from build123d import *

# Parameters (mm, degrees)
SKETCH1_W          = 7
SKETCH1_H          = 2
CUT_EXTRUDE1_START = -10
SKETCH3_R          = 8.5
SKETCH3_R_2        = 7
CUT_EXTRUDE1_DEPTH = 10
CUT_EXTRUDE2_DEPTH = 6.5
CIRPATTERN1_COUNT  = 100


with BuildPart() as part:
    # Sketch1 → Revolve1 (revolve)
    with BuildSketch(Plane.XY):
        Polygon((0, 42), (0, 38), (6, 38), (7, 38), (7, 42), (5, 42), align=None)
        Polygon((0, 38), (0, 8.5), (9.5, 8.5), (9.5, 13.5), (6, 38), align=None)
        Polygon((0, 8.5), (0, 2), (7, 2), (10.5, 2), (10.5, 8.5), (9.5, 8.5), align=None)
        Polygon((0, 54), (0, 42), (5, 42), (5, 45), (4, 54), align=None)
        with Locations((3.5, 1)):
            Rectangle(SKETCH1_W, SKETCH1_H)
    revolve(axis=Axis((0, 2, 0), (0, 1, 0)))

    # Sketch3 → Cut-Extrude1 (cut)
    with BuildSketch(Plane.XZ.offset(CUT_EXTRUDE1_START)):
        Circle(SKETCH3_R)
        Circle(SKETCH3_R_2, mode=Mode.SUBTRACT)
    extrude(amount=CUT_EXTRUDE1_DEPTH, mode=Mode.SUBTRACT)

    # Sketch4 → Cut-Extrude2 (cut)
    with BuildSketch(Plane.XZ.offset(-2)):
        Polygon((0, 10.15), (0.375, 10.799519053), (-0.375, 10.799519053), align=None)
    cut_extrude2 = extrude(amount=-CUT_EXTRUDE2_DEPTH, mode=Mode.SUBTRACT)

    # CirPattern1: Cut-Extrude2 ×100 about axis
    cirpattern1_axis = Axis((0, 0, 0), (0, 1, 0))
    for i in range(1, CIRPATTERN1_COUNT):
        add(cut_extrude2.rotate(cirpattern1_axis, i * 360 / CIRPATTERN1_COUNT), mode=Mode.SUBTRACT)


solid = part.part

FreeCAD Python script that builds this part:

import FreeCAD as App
import Part
import Sketcher

V = App.Vector
Q = App.Units.Quantity


def add_polygon(sketch, points):
    """Adds a closed chain of lines whose ends are joined by coincident constraints."""
    first, n = sketch.GeometryCount, len(points)
    for a, b in zip(points, points[1:] + points[:1]):
        sketch.addGeometry(Part.LineSegment(App.Vector(*a, 0), App.Vector(*b, 0)), False)
    for i in range(n):
        sketch.addConstraint(Sketcher.Constraint("Coincident", first + i, 2, first + (i + 1) % n, 1))

doc = App.newDocument("Part")
body = doc.addObject("PartDesign::Body", "Body")

# Sketch on XY plane
sketch1 = body.newObject("Sketcher::SketchObject", "Sketch")
sketch1.AttachmentSupport = (doc.getObject("XY_Plane"), [""])
sketch1.MapMode = "FlatFace"
add_polygon(sketch1, [(7, 2), (10.5, 2), (10.5, 8.5), (9.5, 8.5), (9.5, 13.5), (6, 38), (7, 38), (7, 42), (5, 42), (5, 45), (4, 54), (0, 54), (0, 0), (7, 0)])  # lines 0-13
sketch1.addConstraint([
    Sketcher.Constraint("Horizontal", 0),
    Sketcher.Constraint("Vertical", 1),
    Sketcher.Constraint("Horizontal", 2),
    Sketcher.Constraint("Vertical", 3),
    Sketcher.Constraint("Horizontal", 5),
    Sketcher.Constraint("Vertical", 6),
    Sketcher.Constraint("Horizontal", 7),
    Sketcher.Constraint("Vertical", 8),
    Sketcher.Constraint("Horizontal", 10),
    Sketcher.Constraint("Vertical", 11),
    Sketcher.Constraint("Horizontal", 12),
    Sketcher.Constraint("Vertical", 13),
    Sketcher.Constraint("Coincident", 11, 2, -1, 1),
    Sketcher.Constraint("Vertical", 6, 2, 12, 2),
    Sketcher.Constraint("Equal", 2, 5),
    Sketcher.Constraint("Equal", 10, 6),
    Sketcher.Constraint("Equal", 7, 13),
    Sketcher.Constraint("DistanceX", 2, 2, 2, 1, Q("1 mm")),
    Sketcher.Constraint("DistanceX", 7, 2, 7, 1, Q("2 mm")),
    Sketcher.Constraint("DistanceX", 10, 2, 10, 1, Q("4 mm")),
    Sketcher.Constraint("DistanceX", 12, 1, 12, 2, Q("7 mm")),
    Sketcher.Constraint("DistanceY", 3, 1, 3, 2, Q("5 mm")),
    Sketcher.Constraint("DistanceY", 8, 1, 8, 2, Q("3 mm")),
    Sketcher.Constraint("DistanceY", 11, 2, 11, 1, Q("54 mm")),
    Sketcher.Constraint("DistanceX", 0, 1, 0, 2, Q("3.5 mm")),
    Sketcher.Constraint("DistanceY", 1, 1, 1, 2, Q("6.5 mm")),
    Sketcher.Constraint("DistanceY", -1, 1, 4, 2, Q("38 mm")),
])
revolution = body.newObject("PartDesign::Revolution", "Revolution")
revolution.Profile = sketch1
revolution.ReferenceAxis = (sketch1, ["V_Axis"])
revolution.Angle = 360

# Sketch on XZ plane
sketch2 = body.newObject("Sketcher::SketchObject", "Sketch001")
sketch2.AttachmentSupport = (doc.getObject("XZ_Plane"), [""])
sketch2.MapMode = "FlatFace"
sketch2.AttachmentOffset = App.Placement(V(0, 0, -10), App.Rotation())
sketch2.addGeometry([
    Part.Circle(V(0, 0, 0), V(0, 0, 1), 8),
    Part.Circle(V(0, 0, 0), V(0, 0, 1), 7),
], False)
sketch2.addConstraint([
    Sketcher.Constraint("Coincident", 0, 3, -1, 1),
    Sketcher.Constraint("Coincident", 1, 3, -1, 1),
    Sketcher.Constraint("Diameter", 0, Q("17 mm")),
    Sketcher.Constraint("Diameter", 1, Q("14 mm")),
])
pocket1 = body.newObject("PartDesign::Pocket", "Pocket")
pocket1.Profile = sketch2
pocket1.Length = 10
pocket1.Reversed = True

# Sketch on XZ plane
sketch3 = body.newObject("Sketcher::SketchObject", "Sketch002")
sketch3.AttachmentSupport = (doc.getObject("XZ_Plane"), [""])
sketch3.MapMode = "FlatFace"
sketch3.AttachmentOffset = App.Placement(V(0, 0, -2), App.Rotation())
add_polygon(sketch3, [(0, 10.2), (0.4, 10.8), (-0.4, 10.8)])  # lines 0-2
sketch3.addConstraint([
    Sketcher.Constraint("Horizontal", 1),
    Sketcher.Constraint("PointOnObject", 2, 2, -2),
    Sketcher.Constraint("Equal", 0, 2),
    Sketcher.Constraint("Angle", 0, Q("60 deg")),
    Sketcher.Constraint("DistanceX", 1, 2, 1, 1, Q("0.75 mm")),
    Sketcher.Constraint("DistanceY", -1, 1, 2, 2, Q("10.15 mm")),
])
pocket2 = body.newObject("PartDesign::Pocket", "Pocket001")
pocket2.Profile = sketch3
pocket2.Length = 6.5
doc.recompute()

polarpattern = body.newObject("PartDesign::PolarPattern", "PolarPattern")
polarpattern.Originals = [pocket2]
polarpattern.Axis = (doc.getObject("Y_Axis"), [""])
polarpattern.Angle = 360
polarpattern.Occurrences = 100
body.Tip = polarpattern

doc.recompute()
